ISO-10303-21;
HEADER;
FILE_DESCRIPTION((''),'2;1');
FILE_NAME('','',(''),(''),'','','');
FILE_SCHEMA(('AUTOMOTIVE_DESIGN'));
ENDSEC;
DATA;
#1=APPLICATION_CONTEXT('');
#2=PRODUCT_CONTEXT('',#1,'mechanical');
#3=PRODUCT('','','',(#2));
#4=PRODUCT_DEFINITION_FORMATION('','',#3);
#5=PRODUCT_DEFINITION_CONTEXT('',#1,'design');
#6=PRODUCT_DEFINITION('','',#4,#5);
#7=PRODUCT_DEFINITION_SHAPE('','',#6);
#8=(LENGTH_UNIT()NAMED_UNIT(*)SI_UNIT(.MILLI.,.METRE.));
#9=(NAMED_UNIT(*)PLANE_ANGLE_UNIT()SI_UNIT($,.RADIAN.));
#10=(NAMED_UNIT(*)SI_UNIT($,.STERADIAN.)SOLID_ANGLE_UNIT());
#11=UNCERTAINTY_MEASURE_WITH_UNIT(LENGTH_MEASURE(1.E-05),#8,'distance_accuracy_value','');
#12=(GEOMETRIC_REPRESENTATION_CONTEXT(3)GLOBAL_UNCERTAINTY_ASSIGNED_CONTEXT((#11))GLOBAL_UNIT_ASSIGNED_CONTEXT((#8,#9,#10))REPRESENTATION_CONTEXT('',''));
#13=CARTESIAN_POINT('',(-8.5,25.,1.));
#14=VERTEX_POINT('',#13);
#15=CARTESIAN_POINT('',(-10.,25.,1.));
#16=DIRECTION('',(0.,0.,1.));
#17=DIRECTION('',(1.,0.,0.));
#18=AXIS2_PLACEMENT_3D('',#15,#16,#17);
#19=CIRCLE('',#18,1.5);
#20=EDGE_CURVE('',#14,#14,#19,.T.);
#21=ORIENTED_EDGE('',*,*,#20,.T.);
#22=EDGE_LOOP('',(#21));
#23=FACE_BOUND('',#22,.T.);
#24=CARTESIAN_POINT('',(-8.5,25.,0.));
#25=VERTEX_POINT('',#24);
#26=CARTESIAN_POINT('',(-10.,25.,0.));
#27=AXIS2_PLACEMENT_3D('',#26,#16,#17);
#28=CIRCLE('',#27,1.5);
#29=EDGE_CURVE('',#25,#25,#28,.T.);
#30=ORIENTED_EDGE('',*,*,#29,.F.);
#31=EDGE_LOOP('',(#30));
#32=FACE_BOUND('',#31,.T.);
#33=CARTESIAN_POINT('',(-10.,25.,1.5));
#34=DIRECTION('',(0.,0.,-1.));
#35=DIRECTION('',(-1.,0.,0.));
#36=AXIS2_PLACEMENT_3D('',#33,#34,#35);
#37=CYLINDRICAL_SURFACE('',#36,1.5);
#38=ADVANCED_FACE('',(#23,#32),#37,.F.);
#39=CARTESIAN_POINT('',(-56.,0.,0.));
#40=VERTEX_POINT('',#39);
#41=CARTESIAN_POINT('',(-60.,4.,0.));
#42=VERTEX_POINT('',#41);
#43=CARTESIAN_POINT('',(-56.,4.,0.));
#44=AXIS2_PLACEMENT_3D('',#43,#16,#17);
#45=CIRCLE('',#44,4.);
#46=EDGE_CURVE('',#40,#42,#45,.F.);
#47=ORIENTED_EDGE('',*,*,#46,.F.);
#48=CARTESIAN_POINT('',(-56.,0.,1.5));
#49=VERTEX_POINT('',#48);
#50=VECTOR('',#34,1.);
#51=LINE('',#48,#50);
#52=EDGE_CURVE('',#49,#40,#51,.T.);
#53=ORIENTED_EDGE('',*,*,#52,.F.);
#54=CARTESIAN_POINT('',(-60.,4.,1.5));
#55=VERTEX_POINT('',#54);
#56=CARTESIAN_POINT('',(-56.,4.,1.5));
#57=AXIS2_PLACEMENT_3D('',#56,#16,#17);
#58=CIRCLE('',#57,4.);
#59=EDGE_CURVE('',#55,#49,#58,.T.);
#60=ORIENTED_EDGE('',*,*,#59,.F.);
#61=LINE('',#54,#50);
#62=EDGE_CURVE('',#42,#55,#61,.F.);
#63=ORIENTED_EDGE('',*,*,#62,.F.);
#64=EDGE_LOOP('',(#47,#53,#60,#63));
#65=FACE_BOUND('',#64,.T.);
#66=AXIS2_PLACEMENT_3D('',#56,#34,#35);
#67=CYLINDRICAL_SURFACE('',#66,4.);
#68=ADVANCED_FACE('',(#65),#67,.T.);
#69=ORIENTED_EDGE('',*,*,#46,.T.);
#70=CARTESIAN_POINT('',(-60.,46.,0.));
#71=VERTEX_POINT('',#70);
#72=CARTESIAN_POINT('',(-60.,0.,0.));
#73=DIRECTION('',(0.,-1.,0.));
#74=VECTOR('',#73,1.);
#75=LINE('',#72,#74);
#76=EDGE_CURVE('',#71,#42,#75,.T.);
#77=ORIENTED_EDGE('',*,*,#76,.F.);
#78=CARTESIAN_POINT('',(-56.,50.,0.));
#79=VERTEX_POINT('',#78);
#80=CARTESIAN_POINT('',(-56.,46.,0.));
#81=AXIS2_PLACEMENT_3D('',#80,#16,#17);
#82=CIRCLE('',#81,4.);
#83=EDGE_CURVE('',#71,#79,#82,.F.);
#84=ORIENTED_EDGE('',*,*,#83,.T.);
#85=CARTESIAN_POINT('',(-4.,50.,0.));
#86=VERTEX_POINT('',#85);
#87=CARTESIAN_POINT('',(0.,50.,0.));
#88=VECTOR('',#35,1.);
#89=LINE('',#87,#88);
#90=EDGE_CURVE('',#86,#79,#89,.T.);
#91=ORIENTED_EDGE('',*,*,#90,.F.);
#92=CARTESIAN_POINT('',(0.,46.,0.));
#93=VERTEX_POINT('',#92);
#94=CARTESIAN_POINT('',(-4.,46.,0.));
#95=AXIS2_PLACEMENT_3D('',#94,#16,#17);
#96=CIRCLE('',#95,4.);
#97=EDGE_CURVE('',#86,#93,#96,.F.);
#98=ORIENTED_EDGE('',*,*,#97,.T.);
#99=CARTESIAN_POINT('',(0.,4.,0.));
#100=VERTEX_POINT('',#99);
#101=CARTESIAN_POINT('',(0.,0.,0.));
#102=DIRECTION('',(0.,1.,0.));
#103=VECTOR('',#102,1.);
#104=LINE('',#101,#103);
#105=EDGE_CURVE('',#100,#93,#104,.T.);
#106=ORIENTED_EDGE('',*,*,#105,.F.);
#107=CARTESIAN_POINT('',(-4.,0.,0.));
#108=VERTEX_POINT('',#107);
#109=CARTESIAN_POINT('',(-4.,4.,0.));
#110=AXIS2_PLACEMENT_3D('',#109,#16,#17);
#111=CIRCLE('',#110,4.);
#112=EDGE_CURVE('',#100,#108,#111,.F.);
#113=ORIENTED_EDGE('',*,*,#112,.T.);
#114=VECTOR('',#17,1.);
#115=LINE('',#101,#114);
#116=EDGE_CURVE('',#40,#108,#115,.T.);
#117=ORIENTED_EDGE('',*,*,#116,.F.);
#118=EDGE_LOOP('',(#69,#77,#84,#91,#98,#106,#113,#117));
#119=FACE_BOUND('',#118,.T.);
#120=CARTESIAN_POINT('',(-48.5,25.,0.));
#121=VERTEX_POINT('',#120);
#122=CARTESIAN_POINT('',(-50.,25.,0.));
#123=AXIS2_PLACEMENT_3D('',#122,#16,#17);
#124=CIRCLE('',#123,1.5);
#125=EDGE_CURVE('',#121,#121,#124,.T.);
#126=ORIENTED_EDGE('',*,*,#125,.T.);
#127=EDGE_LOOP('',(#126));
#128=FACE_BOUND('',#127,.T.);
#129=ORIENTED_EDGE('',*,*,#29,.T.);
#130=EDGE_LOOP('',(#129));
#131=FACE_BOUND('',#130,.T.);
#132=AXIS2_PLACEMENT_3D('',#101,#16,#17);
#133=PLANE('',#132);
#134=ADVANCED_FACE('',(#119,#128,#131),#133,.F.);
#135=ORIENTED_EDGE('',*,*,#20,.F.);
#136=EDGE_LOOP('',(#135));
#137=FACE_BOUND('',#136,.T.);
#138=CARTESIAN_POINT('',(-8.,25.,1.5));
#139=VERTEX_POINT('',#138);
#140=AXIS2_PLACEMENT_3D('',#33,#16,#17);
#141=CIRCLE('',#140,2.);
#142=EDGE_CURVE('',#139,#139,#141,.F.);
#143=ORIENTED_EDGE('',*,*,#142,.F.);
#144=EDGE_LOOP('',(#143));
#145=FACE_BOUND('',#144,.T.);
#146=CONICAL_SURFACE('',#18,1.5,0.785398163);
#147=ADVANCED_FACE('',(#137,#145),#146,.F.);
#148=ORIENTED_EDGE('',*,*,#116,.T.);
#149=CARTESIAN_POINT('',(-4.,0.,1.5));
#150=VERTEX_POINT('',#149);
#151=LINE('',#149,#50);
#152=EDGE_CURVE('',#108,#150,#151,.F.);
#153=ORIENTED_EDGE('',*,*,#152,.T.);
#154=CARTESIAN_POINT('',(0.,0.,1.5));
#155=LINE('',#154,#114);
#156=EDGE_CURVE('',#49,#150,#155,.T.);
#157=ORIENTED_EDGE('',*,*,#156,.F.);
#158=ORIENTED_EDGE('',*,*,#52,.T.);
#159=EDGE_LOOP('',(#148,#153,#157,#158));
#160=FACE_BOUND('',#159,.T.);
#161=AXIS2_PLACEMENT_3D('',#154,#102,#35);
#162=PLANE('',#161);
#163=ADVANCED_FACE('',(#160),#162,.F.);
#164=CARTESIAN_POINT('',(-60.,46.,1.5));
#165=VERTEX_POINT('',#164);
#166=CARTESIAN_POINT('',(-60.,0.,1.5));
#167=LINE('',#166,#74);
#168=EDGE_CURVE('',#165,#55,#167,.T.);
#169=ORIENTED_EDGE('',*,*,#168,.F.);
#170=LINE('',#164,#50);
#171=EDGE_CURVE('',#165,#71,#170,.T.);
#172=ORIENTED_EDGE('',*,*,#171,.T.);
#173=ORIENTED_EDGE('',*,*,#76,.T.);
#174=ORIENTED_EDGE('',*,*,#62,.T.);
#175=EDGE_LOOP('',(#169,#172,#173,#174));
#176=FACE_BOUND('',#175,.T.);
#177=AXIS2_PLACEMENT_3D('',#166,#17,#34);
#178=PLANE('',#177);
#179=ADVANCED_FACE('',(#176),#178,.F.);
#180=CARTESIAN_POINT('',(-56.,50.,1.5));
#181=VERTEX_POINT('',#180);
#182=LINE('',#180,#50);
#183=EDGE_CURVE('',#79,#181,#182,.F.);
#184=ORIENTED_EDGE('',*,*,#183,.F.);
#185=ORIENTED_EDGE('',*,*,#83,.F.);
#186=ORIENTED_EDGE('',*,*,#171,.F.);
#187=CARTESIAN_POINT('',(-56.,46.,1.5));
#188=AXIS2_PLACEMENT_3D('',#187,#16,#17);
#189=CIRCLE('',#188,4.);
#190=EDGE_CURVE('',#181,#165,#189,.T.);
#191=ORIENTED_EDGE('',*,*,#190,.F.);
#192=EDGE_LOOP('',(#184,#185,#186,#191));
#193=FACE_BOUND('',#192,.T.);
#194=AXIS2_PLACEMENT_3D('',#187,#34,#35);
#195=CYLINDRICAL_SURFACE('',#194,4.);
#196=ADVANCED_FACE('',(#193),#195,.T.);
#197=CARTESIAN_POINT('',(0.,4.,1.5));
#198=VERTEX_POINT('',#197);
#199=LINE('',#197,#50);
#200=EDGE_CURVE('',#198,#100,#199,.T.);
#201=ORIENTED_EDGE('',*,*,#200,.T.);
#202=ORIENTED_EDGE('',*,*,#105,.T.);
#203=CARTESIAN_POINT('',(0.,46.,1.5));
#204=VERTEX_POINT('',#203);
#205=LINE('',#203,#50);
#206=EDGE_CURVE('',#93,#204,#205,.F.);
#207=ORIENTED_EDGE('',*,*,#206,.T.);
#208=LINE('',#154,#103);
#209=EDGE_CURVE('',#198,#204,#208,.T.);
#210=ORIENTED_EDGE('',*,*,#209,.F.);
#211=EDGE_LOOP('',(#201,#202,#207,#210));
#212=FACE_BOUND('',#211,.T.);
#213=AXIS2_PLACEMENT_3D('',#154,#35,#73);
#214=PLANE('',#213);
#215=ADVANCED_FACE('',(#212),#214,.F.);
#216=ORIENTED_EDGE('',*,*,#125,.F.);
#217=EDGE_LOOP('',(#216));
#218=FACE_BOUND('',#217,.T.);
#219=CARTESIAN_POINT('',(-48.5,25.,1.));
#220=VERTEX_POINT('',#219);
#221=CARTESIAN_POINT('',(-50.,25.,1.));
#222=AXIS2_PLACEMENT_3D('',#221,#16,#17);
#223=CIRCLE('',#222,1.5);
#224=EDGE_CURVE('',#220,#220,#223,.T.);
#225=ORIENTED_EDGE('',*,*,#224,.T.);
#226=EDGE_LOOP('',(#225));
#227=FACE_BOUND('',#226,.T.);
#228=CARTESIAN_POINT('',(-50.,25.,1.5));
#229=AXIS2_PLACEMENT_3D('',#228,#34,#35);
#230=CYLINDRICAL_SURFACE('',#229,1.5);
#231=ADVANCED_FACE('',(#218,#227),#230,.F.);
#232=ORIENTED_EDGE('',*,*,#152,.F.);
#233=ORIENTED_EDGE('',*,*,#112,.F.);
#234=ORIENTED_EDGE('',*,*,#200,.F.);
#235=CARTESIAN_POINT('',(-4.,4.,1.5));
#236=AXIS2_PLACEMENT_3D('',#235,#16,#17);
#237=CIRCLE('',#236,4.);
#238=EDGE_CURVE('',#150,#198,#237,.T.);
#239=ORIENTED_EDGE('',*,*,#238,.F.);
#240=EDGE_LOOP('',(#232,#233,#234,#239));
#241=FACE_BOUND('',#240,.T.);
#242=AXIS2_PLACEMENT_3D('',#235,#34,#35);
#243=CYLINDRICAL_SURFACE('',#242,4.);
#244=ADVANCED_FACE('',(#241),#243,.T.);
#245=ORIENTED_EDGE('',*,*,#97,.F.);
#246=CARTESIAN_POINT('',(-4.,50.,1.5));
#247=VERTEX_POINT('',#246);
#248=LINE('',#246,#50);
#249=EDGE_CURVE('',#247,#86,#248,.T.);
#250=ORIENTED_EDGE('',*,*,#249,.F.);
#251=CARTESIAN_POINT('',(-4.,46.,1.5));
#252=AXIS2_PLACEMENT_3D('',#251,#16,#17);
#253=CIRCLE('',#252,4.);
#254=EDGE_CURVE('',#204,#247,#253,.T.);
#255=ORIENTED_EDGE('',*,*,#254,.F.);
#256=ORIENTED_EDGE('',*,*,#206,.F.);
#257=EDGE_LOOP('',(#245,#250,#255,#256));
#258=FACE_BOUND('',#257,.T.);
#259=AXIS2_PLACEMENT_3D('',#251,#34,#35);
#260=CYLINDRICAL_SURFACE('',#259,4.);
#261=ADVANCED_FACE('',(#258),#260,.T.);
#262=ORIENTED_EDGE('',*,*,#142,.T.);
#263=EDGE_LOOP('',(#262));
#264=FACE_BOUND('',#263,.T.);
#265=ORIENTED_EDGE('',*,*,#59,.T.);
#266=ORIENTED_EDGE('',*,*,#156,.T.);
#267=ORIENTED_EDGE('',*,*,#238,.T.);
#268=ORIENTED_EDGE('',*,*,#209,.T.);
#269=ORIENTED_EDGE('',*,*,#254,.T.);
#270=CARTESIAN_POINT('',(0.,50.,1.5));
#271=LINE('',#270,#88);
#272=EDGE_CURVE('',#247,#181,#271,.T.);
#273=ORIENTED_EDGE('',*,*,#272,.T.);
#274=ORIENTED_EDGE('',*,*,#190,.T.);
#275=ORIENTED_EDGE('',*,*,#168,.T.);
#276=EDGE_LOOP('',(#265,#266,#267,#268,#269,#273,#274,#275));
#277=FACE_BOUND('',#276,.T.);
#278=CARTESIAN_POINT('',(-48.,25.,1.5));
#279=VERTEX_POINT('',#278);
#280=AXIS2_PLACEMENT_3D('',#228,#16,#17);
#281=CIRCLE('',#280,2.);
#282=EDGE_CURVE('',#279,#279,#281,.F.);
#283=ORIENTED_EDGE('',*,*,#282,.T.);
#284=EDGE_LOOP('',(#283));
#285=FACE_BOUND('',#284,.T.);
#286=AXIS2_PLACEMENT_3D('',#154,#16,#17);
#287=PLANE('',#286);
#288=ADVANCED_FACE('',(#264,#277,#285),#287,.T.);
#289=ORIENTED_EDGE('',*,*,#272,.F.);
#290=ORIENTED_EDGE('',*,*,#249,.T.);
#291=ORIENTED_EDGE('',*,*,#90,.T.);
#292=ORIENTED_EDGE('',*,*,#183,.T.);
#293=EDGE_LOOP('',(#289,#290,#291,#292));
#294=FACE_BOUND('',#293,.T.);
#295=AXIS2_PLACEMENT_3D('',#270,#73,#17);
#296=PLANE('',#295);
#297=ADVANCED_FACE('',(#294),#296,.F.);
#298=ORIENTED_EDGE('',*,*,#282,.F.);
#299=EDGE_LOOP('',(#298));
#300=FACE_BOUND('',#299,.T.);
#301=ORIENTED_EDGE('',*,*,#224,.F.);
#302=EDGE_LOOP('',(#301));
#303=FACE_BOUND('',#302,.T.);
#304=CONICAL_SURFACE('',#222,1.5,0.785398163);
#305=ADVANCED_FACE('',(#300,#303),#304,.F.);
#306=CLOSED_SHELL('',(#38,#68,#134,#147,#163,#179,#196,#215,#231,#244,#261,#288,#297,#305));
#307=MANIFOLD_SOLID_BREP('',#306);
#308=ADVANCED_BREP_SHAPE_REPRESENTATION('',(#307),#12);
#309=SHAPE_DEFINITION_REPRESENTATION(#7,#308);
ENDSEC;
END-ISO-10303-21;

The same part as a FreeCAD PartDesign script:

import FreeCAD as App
import Part
import Sketcher

V = App.Vector
Q = App.Units.Quantity


def edges_at(feature, points):
    """Names of the edges that pass closest to the given points."""
    edges = feature.Shape.Edges
    near = lambda p: min(range(len(edges)), key=lambda i: edges[i].distToShape(Part.Vertex(*p))[0])
    return sorted({f"Edge{near(p) + 1}" for p in points})

doc = App.newDocument("Part")
params = doc.addObject("Spreadsheet::Sheet", "Params")
for row, (alias, value) in enumerate([
    ("sketch1_diameter", "3 mm"),
    ("sketch1_width", "60 mm"),
    ("sketch1_height", "50 mm"),
    ("pad1_length", "1.5 mm"),
    ("chamfer_size", "0.5 mm"),
    ("fillet_radius", "4 mm"),
], start=1):
    params.set(f"A{row}", alias)
    params.set(f"B{row}", "=" + value)
    params.setAlias(f"B{row}", alias)

body = doc.addObject("PartDesign::Body", "Body")

sketch1 = doc.addObject("Sketcher::SketchObject", "Sketch")
body.addObject(sketch1)
sketch1.AttachmentSupport = (doc.XY_Plane, [""])
sketch1.MapMode = "FlatFace"
sketch1.addGeometry([
    Part.LineSegment(V(-60, 50, 0), V(-60, 0, 0)),
    Part.LineSegment(V(-60, 0, 0), V(0, 0, 0)),
    Part.LineSegment(V(0, 0, 0), V(0, 50, 0)),
    Part.LineSegment(V(0, 50, 0), V(-60, 50, 0)),
    Part.Circle(V(-50, 25, 0), V(0, 0, 1), 1.5),
    Part.Circle(V(-10, 25, 0), V(0, 0, 1), 1.5),
], False)
sketch1.addConstraint([
    Sketcher.Constraint("Coincident", 0, 2, 1, 1),
    Sketcher.Constraint("Coincident", 1, 2, 2, 1),
    Sketcher.Constraint("Coincident", 2, 2, 3, 1),
    Sketcher.Constraint("Coincident", 3, 2, 0, 1),
    Sketcher.Constraint("Vertical", 0),
    Sketcher.Constraint("Horizontal", 1),
    Sketcher.Constraint("Vertical", 2),
    Sketcher.Constraint("Horizontal", 3),
    Sketcher.Constraint("Coincident", 1, 2, -1, 1),
    Sketcher.Constraint("Equal", 4, 5),
    Sketcher.Constraint("Horizontal", 4, 3, 5, 3),
    Sketcher.Constraint("Diameter", 4, Q("3 mm")),
    Sketcher.Constraint("DistanceX", 1, 1, 1, 2, Q("60 mm")),
    Sketcher.Constraint("DistanceY", 0, 2, 0, 1, Q("50 mm")),
    Sketcher.Constraint("DistanceX", 4, 3, -1, 1, Q("50 mm")),
    Sketcher.Constraint("DistanceY", -1, 1, 4, 3, Q("25 mm")),
    Sketcher.Constraint("DistanceX", 5, 3, -1, 1, Q("10 mm")),
])
sketch1.setExpression("Constraints[11]", "Params.sketch1_diameter")
sketch1.setExpression("Constraints[12]", "Params.sketch1_width")
sketch1.setExpression("Constraints[13]", "Params.sketch1_height")
pad1 = doc.addObject("PartDesign::Pad", "Pad")
body.addObject(pad1)
pad1.Profile = sketch1
pad1.setExpression("Length", "Params.pad1_length")
doc.recompute()

chamfer = doc.addObject("PartDesign::Chamfer", "Chamfer")
body.addObject(chamfer)
chamfer.Base = (pad1, edges_at(pad1, [(-51.5, 25, 1.5), (-11.5, 25, 1.5)]))
chamfer.setExpression("Size", "Params.chamfer_size")
doc.recompute()

fillet = doc.addObject("PartDesign::Fillet", "Fillet")
body.addObject(fillet)
fillet.Base = (chamfer, edges_at(chamfer, [
    (0, 0, 0.75),
    (-60, 0, 0.75),
    (-60, 50, 0.75),
    (0, 50, 0.75),
]))
fillet.setExpression("Radius", "Params.fillet_radius")

doc.recompute()
